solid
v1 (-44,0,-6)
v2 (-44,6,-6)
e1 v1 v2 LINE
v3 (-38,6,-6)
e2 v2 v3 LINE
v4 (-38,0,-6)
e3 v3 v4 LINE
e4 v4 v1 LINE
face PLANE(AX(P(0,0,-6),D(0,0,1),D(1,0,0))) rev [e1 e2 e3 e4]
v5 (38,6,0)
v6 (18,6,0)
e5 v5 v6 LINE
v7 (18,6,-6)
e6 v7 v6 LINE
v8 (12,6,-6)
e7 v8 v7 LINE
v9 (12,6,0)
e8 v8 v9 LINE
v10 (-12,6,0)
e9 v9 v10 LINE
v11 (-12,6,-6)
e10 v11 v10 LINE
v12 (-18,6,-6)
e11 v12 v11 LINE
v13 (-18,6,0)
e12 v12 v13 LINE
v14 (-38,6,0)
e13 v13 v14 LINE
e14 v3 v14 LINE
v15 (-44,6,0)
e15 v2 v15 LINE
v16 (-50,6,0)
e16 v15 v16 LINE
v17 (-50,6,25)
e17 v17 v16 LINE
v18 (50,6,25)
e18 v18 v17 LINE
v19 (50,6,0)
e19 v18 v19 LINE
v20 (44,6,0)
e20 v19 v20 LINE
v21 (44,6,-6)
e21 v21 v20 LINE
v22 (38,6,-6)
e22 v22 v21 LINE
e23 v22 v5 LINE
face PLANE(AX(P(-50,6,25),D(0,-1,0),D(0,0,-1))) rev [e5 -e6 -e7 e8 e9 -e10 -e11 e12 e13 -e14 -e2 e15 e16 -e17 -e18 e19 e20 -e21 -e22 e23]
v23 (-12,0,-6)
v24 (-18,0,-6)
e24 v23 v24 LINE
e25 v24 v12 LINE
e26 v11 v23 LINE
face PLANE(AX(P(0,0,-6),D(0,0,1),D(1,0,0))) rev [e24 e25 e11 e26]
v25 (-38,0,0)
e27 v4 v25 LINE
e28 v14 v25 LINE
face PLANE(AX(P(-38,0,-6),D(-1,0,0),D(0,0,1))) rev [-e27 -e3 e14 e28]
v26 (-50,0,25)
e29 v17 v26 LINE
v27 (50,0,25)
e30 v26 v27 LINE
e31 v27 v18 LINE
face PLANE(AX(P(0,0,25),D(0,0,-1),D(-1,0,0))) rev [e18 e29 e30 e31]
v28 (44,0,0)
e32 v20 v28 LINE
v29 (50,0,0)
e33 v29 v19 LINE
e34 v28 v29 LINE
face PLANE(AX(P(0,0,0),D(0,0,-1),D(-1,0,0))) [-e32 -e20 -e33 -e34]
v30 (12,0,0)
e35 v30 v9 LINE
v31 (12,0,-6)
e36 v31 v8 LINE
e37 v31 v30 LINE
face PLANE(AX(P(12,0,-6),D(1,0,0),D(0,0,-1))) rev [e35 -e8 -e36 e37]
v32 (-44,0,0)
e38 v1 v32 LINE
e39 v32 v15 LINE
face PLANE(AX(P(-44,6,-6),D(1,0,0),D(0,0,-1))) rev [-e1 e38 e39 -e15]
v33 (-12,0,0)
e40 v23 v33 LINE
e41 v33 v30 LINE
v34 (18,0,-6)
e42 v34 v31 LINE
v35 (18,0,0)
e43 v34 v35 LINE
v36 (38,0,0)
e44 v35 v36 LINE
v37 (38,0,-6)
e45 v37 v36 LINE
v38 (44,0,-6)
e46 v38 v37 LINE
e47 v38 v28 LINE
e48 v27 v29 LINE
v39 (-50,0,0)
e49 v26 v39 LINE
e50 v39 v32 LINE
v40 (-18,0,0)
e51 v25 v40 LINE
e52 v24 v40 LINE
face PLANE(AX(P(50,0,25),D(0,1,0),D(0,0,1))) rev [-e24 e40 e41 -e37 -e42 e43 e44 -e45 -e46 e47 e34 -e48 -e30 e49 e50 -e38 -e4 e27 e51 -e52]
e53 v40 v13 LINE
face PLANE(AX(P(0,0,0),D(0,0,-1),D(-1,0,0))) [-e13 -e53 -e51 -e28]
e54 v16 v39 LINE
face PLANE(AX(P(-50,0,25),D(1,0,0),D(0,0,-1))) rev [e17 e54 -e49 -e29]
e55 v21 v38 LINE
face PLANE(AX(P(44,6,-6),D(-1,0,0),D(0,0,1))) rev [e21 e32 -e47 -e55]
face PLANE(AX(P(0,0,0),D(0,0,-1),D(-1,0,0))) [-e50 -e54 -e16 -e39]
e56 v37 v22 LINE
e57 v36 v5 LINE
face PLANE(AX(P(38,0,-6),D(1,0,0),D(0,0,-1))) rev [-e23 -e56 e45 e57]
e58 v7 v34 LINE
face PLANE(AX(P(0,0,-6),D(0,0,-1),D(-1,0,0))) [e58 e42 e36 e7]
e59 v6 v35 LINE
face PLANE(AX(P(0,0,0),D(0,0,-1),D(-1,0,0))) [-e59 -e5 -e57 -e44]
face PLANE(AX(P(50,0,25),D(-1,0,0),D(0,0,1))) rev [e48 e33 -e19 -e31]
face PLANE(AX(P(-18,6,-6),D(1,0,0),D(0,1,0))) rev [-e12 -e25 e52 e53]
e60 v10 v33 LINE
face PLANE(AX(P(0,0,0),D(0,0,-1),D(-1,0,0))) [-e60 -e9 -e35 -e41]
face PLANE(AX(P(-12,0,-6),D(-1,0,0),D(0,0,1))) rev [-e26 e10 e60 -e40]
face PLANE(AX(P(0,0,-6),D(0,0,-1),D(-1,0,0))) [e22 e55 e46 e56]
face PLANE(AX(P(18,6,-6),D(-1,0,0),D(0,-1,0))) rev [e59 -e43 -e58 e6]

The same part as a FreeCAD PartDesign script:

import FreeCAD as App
import Part
import Sketcher

doc = App.newDocument("Part")
body = doc.addObject("PartDesign::Body", "Body")

# Sketch on XY plane
sketch1 = body.newObject("Sketcher::SketchObject", "Sketch")
sketch1.AttachmentSupport = (doc.getObject("XY_Plane"), [""])
sketch1.MapMode = "FlatFace"
sketch1.addGeometry(Part.LineSegment(App.Vector(-50, 6, 0), App.Vector(-50, 0, 0)), False)
sketch1.addGeometry(Part.LineSegment(App.Vector(-50, 0, 0), App.Vector(50, 0, 0)), False)
sketch1.addGeometry(Part.LineSegment(App.Vector(50, 0, 0), App.Vector(50, 6, 0)), False)
sketch1.addGeometry(Part.LineSegment(App.Vector(50, 6, 0), App.Vector(-50, 6, 0)), False)
sketch1.addConstraint(Sketcher.Constraint("Coincident", 0, 2, 1, 1))
sketch1.addConstraint(Sketcher.Constraint("Coincident", 1, 2, 2, 1))
sketch1.addConstraint(Sketcher.Constraint("Coincident", 2, 2, 3, 1))
sketch1.addConstraint(Sketcher.Constraint("Coincident", 3, 2, 0, 1))
sketch1.addConstraint(Sketcher.Constraint("Vertical", 0))
sketch1.addConstraint(Sketcher.Constraint("Horizontal", 1))
sketch1.addConstraint(Sketcher.Constraint("Vertical", 2))
sketch1.addConstraint(Sketcher.Constraint("Horizontal", 3))
sketch1.addConstraint(Sketcher.Constraint("Symmetric", 0, 2, 1, 2, -1, 1))
sketch1.addConstraint(Sketcher.Constraint("DistanceX", 1, 1, 1, 2, 100.0))
sketch1.addConstraint(Sketcher.Constraint("DistanceY", 0, 2, 0, 1, 6.0))
pad1 = body.newObject("PartDesign::Pad", "Pad")
pad1.Profile = sketch1
pad1.Length = 25

# Sketch on XY plane
sketch2 = body.newObject("Sketcher::SketchObject", "Sketch001")
sketch2.AttachmentSupport = (doc.getObject("XY_Plane"), [""])
sketch2.MapMode = "FlatFace"
sketch2.addGeometry(Part.LineSegment(App.Vector(44, 6, 0), App.Vector(44, 0, 0)), False)
sketch2.addGeometry(Part.LineSegment(App.Vector(44, 0, 0), App.Vector(38, 0, 0)), False)
sketch2.addGeometry(Part.LineSegment(App.Vector(38, 0, 0), App.Vector(38, 6, 0)), False)
sketch2.addGeometry(Part.LineSegment(App.Vector(38, 6, 0), App.Vector(44, 6, 0)), False)
sketch2.addGeometry(Part.LineSegment(App.Vector(18, 6, 0), App.Vector(18, 0, 0)), False)
sketch2.addGeometry(Part.LineSegment(App.Vector(18, 0, 0), App.Vector(12, 0, 0)), False)
sketch2.addGeometry(Part.LineSegment(App.Vector(12, 0, 0), App.Vector(12, 6, 0)), False)
sketch2.addGeometry(Part.LineSegment(App.Vector(12, 6, 0), App.Vector(18, 6, 0)), False)
sketch2.addGeometry(Part.LineSegment(App.Vector(-12, 6, 0), App.Vector(-12, 0, 0)), False)
sketch2.addGeometry(Part.LineSegment(App.Vector(-12, 0, 0), App.Vector(-18, 0, 0)), False)
sketch2.addGeometry(Part.LineSegment(App.Vector(-18, 0, 0), App.Vector(-18, 6, 0)), False)
sketch2.addGeometry(Part.LineSegment(App.Vector(-18, 6, 0), App.Vector(-12, 6, 0)), False)
sketch2.addGeometry(Part.LineSegment(App.Vector(-38, 6, 0), App.Vector(-38, 0, 0)), False)
sketch2.addGeometry(Part.LineSegment(App.Vector(-38, 0, 0), App.Vector(-44, 0, 0)), False)
sketch2.addGeometry(Part.LineSegment(App.Vector(-44, 0, 0), App.Vector(-44, 6, 0)), False)
sketch2.addGeometry(Part.LineSegment(App.Vector(-44, 6, 0), App.Vector(-38, 6, 0)), False)
sketch2.addConstraint(Sketcher.Constraint("Coincident", 0, 2, 1, 1))
sketch2.addConstraint(Sketcher.Constraint("Coincident", 1, 2, 2, 1))
sketch2.addConstraint(Sketcher.Constraint("Coincident", 2, 2, 3, 1))
sketch2.addConstraint(Sketcher.Constraint("Coincident", 3, 2, 0, 1))
sketch2.addConstraint(Sketcher.Constraint("Coincident", 4, 2, 5, 1))
sketch2.addConstraint(Sketcher.Constraint("Coincident", 5, 2, 6, 1))
sketch2.addConstraint(Sketcher.Constraint("Coincident", 6, 2, 7, 1))
sketch2.addConstraint(Sketcher.Constraint("Coincident", 7, 2, 4, 1))
sketch2.addConstraint(Sketcher.Constraint("Coincident", 8, 2, 9, 1))
sketch2.addConstraint(Sketcher.Constraint("Coincident", 9, 2, 10, 1))
sketch2.addConstraint(Sketcher.Constraint("Coincident", 10, 2, 11, 1))
sketch2.addConstraint(Sketcher.Constraint("Coincident", 11, 2, 8, 1))
sketch2.addConstraint(Sketcher.Constraint("Coincident", 12, 2, 13, 1))
sketch2.addConstraint(Sketcher.Constraint("Coincident", 13, 2, 14, 1))
sketch2.addConstraint(Sketcher.Constraint("Coincident", 14, 2, 15, 1))
sketch2.addConstraint(Sketcher.Constraint("Coincident", 15, 2, 12, 1))
sketch2.addConstraint(Sketcher.Constraint("Vertical", 0))
sketch2.addConstraint(Sketcher.Constraint("Horizontal", 1))
sketch2.addConstraint(Sketcher.Constraint("Vertical", 2))
sketch2.addConstraint(Sketcher.Constraint("Horizontal", 3))
sketch2.addConstraint(Sketcher.Constraint("Vertical", 4))
sketch2.addConstraint(Sketcher.Constraint("Horizontal", 5))
sketch2.addConstraint(Sketcher.Constraint("Vertical", 6))
sketch2.addConstraint(Sketcher.Constraint("Horizontal", 7))
sketch2.addConstraint(Sketcher.Constraint("Vertical", 8))
sketch2.addConstraint(Sketcher.Constraint("Horizontal", 9))
sketch2.addConstraint(Sketcher.Constraint("Vertical", 10))
sketch2.addConstraint(Sketcher.Constraint("Horizontal", 11))
sketch2.addConstraint(Sketcher.Constraint("Vertical", 12))
sketch2.addConstraint(Sketcher.Constraint("Horizontal", 13))
sketch2.addConstraint(Sketcher.Constraint("Vertical", 14))
sketch2.addConstraint(Sketcher.Constraint("Horizontal", 15))
sketch2.addConstraint(Sketcher.Constraint("Symmetric", 5, 2, 8, 2, -1, 1))
sketch2.addConstraint(Sketcher.Constraint("Symmetric", 1, 2, 12, 2, -1, 1))
sketch2.addConstraint(Sketcher.Constraint("Symmetric", 4, 2, 9, 2, -2))
sketch2.addConstraint(Sketcher.Constraint("Symmetric", 0, 2, 13, 2, -2))
sketch2.addConstraint(Sketcher.Constraint("Horizontal", 3, 2, 6, 2))
sketch2.addConstraint(Sketcher.Constraint("Horizontal", 7, 2, 10, 2))
sketch2.addConstraint(Sketcher.Constraint("Horizontal", 11, 2, 14, 2))
sketch2.addConstraint(Sketcher.Constraint("Equal", 3, 5))
sketch2.addConstraint(Sketcher.Constraint("Equal", 15, 0))
sketch2.addConstraint(Sketcher.Constraint("DistanceX", 1, 2, 1, 1, 6.0))
sketch2.addConstraint(Sketcher.Constraint("DistanceX", -1, 1, 0, 2, 44.0))
sketch2.addConstraint(Sketcher.Constraint("DistanceX", -1, 1, 4, 2, 18.0))
pad2 = body.newObject("PartDesign::Pad", "Pad001")
pad2.Profile = sketch2
pad2.Length = 6
pad2.Reversed = True

doc.recompute()
